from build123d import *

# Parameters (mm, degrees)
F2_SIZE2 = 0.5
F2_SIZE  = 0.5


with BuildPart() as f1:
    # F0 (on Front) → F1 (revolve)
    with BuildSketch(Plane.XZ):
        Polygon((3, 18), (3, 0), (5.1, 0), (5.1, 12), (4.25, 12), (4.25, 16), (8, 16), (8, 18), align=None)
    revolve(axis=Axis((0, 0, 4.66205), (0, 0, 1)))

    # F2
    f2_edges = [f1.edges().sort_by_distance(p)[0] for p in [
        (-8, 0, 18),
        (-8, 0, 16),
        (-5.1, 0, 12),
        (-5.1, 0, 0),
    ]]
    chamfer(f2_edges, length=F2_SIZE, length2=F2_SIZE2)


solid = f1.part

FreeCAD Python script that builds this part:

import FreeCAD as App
import Part
import Sketcher

V = App.Vector


def edges_at(feature, points):
    """Names of the edges that pass closest to the given points."""
    edges = feature.Shape.Edges
    near = lambda p: min(range(len(edges)), key=lambda i: edges[i].distToShape(Part.Vertex(*p))[0])
    return sorted({f"Edge{near(p) + 1}" for p in points})


def add_polygon(sketch, points):
    """Adds a closed chain of lines whose ends are joined by coincident constraints."""
    first, n = sketch.GeometryCount, len(points)
    for a, b in zip(points, points[1:] + points[:1]):
        sketch.addGeometry(Part.LineSegment(App.Vector(*a, 0), App.Vector(*b, 0)), False)
    for i in range(n):
        sketch.addConstraint(Sketcher.Constraint("Coincident", first + i, 2, first + (i + 1) % n, 1))

doc = App.newDocument("Part")
params = doc.addObject("Spreadsheet::Sheet", "Params")
for row, (alias, value) in enumerate([
    ("sketch1_width", "5 mm"),
    ("sketch1_height", "18 mm"),
    ("sketch1_height2", "12 mm"),
    ("sketch1_height3", "4 mm"),
    ("sketch1_width2", "2.1 mm"),
    ("revolution_angle", "360 deg"),
    ("chamfer_size", "0.5 mm"),
    ("chamfer_size2", "0.5 mm"),
], start=1):
    params.set(f"A{row}", alias)
    params.set(f"B{row}", "=" + value)
    params.setAlias(f"B{row}", alias)

body = doc.addObject("PartDesign::Body", "Body")

# Sketch on XZ plane
sketch1 = body.newObject("Sketcher::SketchObject", "Sketch")
sketch1.AttachmentSupport = (doc.getObject("XZ_Plane"), [""])
sketch1.MapMode = "FlatFace"
add_polygon(sketch1, [(3, 18), (3, 0), (5.1, 0), (5.1, 12), (4.25, 12), (4.25, 16), (8, 16), (8, 18)])  # lines 0-7
sketch1.addConstraint(Sketcher.Constraint("Vertical", 0))
sketch1.addConstraint(Sketcher.Constraint("Horizontal", 1))
sketch1.addConstraint(Sketcher.Constraint("Vertical", 2))
sketch1.addConstraint(Sketcher.Constraint("Horizontal", 3))
sketch1.addConstraint(Sketcher.Constraint("Vertical", 4))
sketch1.addConstraint(Sketcher.Constraint("Horizontal", 5))
sketch1.addConstraint(Sketcher.Constraint("Vertical", 6))
sketch1.addConstraint(Sketcher.Constraint("Horizontal", 7))
sketch1.addConstraint(Sketcher.Constraint("PointOnObject", 0, 2, -1))
sketch1.addConstraint(Sketcher.Constraint("DistanceX", 7, 2, 7, 1, 5.0))
sketch1.addConstraint(Sketcher.Constraint("DistanceY", 0, 2, 0, 1, 18.0))
sketch1.addConstraint(Sketcher.Constraint("DistanceY", 2, 1, 2, 2, 12.0))
sketch1.addConstraint(Sketcher.Constraint("DistanceY", 4, 1, 4, 2, 4.0))
sketch1.addConstraint(Sketcher.Constraint("DistanceX", 1, 1, 1, 2, 2.1))
sketch1.addConstraint(Sketcher.Constraint("DistanceX", -1, 1, 0, 2, 3.0))
sketch1.addConstraint(Sketcher.Constraint("DistanceX", 3, 2, 3, 1, 0.85))
sketch1.setExpression("Constraints[17]", "Params.sketch1_width")
sketch1.setExpression("Constraints[18]", "Params.sketch1_height")
sketch1.setExpression("Constraints[19]", "Params.sketch1_height2")
sketch1.setExpression("Constraints[20]", "Params.sketch1_height3")
sketch1.setExpression("Constraints[21]", "Params.sketch1_width2")
revolution = body.newObject("PartDesign::Revolution", "Revolution")
revolution.Profile = sketch1
revolution.ReferenceAxis = (sketch1, ["V_Axis"])
revolution.setExpression("Angle", "Params.revolution_angle")
doc.recompute()

chamfer = body.newObject("PartDesign::Chamfer", "Chamfer")
chamfer.Base = (revolution, edges_at(revolution, [
    (-8, 0, 18),
    (-8, 0, 16),
    (-5.1, 0, 12),
    (-5.1, 0, 0),
]))
chamfer.ChamferType = "Two distances"
chamfer.setExpression("Size", "Params.chamfer_size")
chamfer.setExpression("Size2", "Params.chamfer_size2")

doc.recompute()
